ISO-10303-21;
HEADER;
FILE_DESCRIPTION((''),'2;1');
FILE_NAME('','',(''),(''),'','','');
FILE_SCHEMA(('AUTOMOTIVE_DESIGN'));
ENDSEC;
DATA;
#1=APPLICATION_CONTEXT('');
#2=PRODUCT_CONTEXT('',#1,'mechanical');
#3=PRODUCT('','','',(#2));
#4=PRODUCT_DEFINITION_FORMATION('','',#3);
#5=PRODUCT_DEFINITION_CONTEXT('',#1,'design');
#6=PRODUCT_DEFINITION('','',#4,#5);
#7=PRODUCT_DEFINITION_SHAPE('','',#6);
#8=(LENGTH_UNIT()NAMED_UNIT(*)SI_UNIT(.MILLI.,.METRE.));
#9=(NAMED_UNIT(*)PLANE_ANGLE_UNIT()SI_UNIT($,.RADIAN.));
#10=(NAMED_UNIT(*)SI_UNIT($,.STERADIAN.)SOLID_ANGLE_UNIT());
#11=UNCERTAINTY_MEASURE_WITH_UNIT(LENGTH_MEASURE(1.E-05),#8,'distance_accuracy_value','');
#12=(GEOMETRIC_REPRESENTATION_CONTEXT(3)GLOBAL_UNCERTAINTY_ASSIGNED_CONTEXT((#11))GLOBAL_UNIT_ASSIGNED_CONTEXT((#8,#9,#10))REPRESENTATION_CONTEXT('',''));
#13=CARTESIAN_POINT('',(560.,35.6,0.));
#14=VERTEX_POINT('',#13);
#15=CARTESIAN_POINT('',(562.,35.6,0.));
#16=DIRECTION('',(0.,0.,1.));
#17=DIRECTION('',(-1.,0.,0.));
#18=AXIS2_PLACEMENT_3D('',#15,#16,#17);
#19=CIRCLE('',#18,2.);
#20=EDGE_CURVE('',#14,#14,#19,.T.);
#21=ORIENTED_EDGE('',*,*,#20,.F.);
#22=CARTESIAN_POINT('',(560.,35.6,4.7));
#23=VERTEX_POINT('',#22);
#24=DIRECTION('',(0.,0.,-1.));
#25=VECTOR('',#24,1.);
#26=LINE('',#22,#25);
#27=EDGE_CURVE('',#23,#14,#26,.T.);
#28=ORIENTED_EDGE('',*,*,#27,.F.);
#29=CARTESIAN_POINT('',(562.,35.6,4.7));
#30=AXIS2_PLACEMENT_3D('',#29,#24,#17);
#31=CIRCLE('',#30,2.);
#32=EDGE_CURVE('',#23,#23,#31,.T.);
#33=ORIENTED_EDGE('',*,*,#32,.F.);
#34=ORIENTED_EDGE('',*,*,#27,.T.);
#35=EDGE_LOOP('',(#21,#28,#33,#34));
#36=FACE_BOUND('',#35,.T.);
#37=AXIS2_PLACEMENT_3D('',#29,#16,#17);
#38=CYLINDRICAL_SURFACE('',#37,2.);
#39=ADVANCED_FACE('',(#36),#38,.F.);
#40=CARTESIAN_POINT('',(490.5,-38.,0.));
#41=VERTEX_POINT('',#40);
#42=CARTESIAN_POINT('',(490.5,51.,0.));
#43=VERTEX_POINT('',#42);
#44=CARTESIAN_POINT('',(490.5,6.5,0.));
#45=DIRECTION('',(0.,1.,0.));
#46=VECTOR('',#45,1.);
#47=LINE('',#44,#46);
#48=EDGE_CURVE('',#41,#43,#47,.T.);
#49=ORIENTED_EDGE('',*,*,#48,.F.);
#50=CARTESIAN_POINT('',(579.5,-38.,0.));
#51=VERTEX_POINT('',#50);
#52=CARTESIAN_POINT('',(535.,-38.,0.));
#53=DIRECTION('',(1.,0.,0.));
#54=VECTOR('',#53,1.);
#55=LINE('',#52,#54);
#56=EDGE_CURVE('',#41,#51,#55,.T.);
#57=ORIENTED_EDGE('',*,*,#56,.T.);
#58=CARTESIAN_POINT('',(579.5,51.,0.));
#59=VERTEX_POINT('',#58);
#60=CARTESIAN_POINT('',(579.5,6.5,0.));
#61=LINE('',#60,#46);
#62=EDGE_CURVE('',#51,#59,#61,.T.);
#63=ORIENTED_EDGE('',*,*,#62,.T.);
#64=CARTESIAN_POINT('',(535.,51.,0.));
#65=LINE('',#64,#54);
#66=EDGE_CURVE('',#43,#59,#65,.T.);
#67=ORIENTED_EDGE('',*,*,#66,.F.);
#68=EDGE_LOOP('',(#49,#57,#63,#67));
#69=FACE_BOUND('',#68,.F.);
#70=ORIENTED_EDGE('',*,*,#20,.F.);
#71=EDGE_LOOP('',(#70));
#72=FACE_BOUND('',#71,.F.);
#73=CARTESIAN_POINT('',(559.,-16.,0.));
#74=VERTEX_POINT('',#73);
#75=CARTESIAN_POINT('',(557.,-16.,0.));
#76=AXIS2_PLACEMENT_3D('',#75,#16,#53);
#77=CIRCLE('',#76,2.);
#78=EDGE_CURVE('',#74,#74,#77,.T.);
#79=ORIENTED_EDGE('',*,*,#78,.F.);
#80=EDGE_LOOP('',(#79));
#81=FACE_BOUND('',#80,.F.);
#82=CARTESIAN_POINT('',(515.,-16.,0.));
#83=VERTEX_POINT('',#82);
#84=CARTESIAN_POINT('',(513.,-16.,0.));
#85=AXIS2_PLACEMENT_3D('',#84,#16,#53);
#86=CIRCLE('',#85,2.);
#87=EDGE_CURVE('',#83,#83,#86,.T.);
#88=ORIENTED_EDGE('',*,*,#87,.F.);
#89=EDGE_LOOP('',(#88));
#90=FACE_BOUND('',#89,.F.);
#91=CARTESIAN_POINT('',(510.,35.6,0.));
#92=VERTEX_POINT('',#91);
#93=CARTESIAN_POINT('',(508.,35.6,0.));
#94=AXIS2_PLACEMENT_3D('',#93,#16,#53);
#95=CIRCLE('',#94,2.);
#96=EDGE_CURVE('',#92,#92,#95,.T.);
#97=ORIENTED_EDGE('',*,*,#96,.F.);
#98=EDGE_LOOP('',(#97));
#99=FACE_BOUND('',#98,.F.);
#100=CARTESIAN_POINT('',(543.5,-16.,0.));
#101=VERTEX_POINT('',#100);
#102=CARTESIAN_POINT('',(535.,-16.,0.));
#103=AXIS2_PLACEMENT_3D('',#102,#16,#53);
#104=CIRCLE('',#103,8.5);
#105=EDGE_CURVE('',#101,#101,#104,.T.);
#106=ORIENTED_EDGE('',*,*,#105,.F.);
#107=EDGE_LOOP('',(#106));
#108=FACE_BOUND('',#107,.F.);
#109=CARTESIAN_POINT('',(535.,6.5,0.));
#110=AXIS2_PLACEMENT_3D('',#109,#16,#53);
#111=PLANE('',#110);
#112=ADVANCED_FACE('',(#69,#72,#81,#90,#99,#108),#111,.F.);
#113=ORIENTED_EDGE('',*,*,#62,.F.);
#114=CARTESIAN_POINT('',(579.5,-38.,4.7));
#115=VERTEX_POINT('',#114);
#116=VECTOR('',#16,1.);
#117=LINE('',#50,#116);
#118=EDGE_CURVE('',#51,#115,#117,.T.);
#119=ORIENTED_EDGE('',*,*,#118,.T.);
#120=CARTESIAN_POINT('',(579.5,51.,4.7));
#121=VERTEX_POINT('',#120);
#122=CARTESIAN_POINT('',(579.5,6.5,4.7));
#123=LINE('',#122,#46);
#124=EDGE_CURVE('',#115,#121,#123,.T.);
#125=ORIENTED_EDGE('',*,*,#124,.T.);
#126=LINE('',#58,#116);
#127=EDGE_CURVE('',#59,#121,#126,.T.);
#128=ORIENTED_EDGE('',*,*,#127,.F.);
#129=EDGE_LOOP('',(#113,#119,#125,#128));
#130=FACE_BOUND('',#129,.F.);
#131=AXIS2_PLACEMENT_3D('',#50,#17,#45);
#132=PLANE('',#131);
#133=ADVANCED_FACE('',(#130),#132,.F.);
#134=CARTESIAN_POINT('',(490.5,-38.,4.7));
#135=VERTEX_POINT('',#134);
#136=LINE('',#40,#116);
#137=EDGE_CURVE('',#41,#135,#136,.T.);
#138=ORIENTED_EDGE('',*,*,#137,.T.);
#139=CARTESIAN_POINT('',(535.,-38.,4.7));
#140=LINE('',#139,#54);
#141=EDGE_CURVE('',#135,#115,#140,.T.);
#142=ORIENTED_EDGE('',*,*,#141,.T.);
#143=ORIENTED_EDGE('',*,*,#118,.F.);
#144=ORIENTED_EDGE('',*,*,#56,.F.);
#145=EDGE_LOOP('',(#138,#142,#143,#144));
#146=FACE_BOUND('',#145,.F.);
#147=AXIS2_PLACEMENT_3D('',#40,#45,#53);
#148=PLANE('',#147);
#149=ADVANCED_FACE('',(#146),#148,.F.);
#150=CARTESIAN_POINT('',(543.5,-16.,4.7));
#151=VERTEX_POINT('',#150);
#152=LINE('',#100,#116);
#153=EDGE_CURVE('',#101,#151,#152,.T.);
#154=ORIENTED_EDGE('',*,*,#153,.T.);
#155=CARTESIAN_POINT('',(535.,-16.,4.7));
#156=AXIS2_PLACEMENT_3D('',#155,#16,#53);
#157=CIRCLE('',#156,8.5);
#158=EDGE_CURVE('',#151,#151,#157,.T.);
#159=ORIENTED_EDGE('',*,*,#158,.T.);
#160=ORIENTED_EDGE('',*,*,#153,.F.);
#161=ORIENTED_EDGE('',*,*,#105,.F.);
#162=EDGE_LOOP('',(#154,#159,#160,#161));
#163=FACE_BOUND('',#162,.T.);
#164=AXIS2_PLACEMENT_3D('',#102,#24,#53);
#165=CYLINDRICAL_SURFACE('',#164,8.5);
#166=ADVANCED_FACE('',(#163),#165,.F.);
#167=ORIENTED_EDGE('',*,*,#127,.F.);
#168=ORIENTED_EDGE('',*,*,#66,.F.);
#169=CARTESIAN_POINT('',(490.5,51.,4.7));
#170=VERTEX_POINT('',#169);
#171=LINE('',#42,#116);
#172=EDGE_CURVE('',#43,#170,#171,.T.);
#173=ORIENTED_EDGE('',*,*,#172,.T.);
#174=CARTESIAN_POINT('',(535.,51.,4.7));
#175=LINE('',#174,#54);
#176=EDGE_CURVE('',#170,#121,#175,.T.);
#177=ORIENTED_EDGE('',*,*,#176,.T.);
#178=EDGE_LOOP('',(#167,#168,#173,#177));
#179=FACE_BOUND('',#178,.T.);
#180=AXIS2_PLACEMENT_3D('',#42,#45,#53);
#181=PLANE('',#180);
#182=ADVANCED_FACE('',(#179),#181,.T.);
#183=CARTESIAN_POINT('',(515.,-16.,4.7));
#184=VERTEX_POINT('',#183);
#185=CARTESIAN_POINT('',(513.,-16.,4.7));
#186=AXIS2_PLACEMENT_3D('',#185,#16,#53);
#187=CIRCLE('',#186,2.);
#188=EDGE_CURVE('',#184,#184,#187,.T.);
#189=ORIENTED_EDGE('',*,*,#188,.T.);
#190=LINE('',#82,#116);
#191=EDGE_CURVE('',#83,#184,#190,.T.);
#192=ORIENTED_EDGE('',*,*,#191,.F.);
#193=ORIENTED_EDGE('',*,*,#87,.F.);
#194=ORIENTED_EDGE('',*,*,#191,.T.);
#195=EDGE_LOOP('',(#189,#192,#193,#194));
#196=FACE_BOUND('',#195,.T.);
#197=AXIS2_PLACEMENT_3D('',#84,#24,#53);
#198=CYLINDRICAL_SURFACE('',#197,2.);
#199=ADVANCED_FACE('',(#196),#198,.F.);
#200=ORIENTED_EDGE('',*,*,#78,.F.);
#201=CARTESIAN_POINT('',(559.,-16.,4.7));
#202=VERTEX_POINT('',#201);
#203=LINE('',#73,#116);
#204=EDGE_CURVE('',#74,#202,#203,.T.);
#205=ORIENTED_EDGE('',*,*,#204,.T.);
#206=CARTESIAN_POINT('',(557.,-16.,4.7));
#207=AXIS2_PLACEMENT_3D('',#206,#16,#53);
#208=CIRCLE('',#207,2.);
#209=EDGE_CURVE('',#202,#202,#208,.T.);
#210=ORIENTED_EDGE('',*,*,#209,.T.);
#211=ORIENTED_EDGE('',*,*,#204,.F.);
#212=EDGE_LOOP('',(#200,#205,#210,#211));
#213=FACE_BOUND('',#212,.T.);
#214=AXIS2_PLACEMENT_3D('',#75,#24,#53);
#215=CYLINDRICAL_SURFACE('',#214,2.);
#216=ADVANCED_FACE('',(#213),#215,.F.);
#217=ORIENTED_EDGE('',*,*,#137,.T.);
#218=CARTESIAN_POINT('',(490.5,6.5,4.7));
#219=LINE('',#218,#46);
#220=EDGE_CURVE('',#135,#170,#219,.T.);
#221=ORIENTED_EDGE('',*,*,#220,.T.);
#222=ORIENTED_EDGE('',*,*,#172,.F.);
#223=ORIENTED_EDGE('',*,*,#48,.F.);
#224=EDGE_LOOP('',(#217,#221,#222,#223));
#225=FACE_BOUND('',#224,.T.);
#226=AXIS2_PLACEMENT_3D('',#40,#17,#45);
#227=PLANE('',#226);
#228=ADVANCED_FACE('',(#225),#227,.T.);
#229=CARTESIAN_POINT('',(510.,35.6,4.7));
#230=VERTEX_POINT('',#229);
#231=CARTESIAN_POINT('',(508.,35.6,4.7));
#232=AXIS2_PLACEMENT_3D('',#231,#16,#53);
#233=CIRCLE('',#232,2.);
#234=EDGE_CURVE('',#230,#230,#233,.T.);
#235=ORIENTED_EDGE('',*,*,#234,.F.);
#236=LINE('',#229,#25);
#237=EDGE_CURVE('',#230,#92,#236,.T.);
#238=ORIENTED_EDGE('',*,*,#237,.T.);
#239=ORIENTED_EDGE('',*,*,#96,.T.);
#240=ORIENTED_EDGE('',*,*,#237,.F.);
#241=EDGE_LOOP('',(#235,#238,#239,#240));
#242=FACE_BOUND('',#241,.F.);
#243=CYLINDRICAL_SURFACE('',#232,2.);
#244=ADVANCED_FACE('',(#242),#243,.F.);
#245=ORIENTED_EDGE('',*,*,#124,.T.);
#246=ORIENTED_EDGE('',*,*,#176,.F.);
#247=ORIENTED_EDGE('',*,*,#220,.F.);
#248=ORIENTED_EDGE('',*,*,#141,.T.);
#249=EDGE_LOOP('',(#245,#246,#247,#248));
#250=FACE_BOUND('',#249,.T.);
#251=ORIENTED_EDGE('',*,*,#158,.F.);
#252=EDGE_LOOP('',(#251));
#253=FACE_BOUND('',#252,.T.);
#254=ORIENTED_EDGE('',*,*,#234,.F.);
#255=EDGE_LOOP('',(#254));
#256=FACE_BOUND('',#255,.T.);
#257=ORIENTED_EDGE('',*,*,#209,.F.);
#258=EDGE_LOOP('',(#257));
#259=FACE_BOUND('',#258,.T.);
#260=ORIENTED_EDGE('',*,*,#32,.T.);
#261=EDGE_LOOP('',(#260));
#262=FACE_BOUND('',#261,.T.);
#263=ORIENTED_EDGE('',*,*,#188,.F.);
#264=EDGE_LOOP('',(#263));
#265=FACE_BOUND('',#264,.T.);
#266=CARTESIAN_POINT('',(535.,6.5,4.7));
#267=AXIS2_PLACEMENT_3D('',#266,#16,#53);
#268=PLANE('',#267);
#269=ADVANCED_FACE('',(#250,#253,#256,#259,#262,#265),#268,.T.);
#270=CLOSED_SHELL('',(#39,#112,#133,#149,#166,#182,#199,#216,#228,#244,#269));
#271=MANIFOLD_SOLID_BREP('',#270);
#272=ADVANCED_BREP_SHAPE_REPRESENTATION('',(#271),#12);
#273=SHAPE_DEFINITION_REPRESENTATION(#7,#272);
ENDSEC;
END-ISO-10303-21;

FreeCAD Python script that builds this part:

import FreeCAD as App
import Part
import Sketcher


def add_polygon(sketch, points):
    """Adds a closed chain of lines whose ends are joined by coincident constraints."""
    first, n = sketch.GeometryCount, len(points)
    for a, b in zip(points, points[1:] + points[:1]):
        sketch.addGeometry(Part.LineSegment(App.Vector(*a, 0), App.Vector(*b, 0)), False)
    for i in range(n):
        sketch.addConstraint(Sketcher.Constraint("Coincident", first + i, 2, first + (i + 1) % n, 1))

doc = App.newDocument("Part")
body = doc.addObject("PartDesign::Body", "Body")

sketch1 = body.newObject("Sketcher::SketchObject", "Sketch")
sketch1.AttachmentSupport = (doc.getObject("XY_Plane"), [""])
sketch1.MapMode = "FlatFace"
add_polygon(sketch1, [(-44.5, 44.5), (-44.5, -44.5), (44.5, -44.5), (44.5, 44.5)])
sketch1.addGeometry(Part.Circle(App.Vector(-22, -22.5, 0), App.Vector(0, 0, 1), 2), False)
sketch1.addGeometry(Part.Circle(App.Vector(0, -22.5, 0), App.Vector(0, 0, 1), 8.5), False)
sketch1.addGeometry(Part.Circle(App.Vector(22, -22.5, 0), App.Vector(0, 0, 1), 2), False)
sketch1.addConstraint([
    Sketcher.Constraint("Vertical", 0),
    Sketcher.Constraint("Horizontal", 1),
    Sketcher.Constraint("Vertical", 2),
    Sketcher.Constraint("Horizontal", 3),
    Sketcher.Constraint("Equal", 4, 6),
    Sketcher.Constraint("Symmetric", 0, 2, 2, 2, -1, 1),
    Sketcher.Constraint("Symmetric", 4, 3, 6, 3, -2),
    Sketcher.Constraint("PointOnObject", 5, 3, -2),
    Sketcher.Constraint("Horizontal", 4, 3, 5, 3),
    Sketcher.Constraint("Equal", 3, 0),
    Sketcher.Constraint("Diameter", 4, 4.0),
    Sketcher.Constraint("Diameter", 5, 17.0),
    Sketcher.Constraint("DistanceX", 1, 1, 1, 2, 89.0),
    Sketcher.Constraint("DistanceX", 4, 3, -1, 1, 22.0),
    Sketcher.Constraint("DistanceY", 0, 2, 4, 3, 22.0),
])
pad1 = body.newObject("PartDesign::Pad", "Pad")
pad1.Profile = sketch1
pad1.Length = 4.7

sketch2 = body.newObject("Sketcher::SketchObject", "Sketch001")
sketch2.AttachmentSupport = (doc.getObject("XY_Plane"), [""])
sketch2.MapMode = "FlatFace"
sketch2.AttachmentOffset = App.Placement(App.Vector(0, 0, 4.7), App.Rotation())
sketch2.addGeometry(Part.Circle(App.Vector(-27, 29.1, 0), App.Vector(0, 0, 1), 2), False)
sketch2.addConstraint([
    Sketcher.Constraint("Diameter", 0, 4.0),
    Sketcher.Constraint("DistanceX", 0, 3, -1, 1, 27.0),
    Sketcher.Constraint("DistanceY", -1, 1, 0, 3, 29.1),
])
pocket1 = body.newObject("PartDesign::Pocket", "Pocket")
pocket1.Profile = sketch2
pocket1.Type = "ThroughAll"
doc.recompute()

mirrored = body.newObject("PartDesign::Mirrored", "Mirrored")
mirrored.Originals = [pocket1]
mirrored.MirrorPlane = (doc.getObject("YZ_Plane"), [""])
body.Tip = mirrored
body2 = doc.addObject("PartDesign::Body", "Body001")
doc.recompute()

body.Placement = App.Placement(App.Vector(0, 0, 99), App.Rotation(App.Vector(0, 0, 1), 0))
boolean = body2.newObject("PartDesign::Boolean", "Boolean")
boolean.Type = "Fuse"
boolean.addObjects([body])
body3 = doc.addObject("PartDesign::Body", "Body002")
doc.recompute()

body2.Placement = App.Placement(App.Vector(0, 0, -99), App.Rotation(App.Vector(0, 0, 1), 0))
boolean2 = body3.newObject("PartDesign::Boolean", "Boolean001")
boolean2.Type = "Fuse"
boolean2.addObjects([body2])
body4 = doc.addObject("PartDesign::Body", "Body003")
doc.recompute()

body3.Placement = App.Placement(App.Vector(535, 6.5, 0), App.Rotation(App.Vector(0, 0, 1), 0))
boolean3 = body4.newObject("PartDesign::Boolean", "Boolean002")
boolean3.Type = "Fuse"
boolean3.addObjects([body3])

doc.recompute()
